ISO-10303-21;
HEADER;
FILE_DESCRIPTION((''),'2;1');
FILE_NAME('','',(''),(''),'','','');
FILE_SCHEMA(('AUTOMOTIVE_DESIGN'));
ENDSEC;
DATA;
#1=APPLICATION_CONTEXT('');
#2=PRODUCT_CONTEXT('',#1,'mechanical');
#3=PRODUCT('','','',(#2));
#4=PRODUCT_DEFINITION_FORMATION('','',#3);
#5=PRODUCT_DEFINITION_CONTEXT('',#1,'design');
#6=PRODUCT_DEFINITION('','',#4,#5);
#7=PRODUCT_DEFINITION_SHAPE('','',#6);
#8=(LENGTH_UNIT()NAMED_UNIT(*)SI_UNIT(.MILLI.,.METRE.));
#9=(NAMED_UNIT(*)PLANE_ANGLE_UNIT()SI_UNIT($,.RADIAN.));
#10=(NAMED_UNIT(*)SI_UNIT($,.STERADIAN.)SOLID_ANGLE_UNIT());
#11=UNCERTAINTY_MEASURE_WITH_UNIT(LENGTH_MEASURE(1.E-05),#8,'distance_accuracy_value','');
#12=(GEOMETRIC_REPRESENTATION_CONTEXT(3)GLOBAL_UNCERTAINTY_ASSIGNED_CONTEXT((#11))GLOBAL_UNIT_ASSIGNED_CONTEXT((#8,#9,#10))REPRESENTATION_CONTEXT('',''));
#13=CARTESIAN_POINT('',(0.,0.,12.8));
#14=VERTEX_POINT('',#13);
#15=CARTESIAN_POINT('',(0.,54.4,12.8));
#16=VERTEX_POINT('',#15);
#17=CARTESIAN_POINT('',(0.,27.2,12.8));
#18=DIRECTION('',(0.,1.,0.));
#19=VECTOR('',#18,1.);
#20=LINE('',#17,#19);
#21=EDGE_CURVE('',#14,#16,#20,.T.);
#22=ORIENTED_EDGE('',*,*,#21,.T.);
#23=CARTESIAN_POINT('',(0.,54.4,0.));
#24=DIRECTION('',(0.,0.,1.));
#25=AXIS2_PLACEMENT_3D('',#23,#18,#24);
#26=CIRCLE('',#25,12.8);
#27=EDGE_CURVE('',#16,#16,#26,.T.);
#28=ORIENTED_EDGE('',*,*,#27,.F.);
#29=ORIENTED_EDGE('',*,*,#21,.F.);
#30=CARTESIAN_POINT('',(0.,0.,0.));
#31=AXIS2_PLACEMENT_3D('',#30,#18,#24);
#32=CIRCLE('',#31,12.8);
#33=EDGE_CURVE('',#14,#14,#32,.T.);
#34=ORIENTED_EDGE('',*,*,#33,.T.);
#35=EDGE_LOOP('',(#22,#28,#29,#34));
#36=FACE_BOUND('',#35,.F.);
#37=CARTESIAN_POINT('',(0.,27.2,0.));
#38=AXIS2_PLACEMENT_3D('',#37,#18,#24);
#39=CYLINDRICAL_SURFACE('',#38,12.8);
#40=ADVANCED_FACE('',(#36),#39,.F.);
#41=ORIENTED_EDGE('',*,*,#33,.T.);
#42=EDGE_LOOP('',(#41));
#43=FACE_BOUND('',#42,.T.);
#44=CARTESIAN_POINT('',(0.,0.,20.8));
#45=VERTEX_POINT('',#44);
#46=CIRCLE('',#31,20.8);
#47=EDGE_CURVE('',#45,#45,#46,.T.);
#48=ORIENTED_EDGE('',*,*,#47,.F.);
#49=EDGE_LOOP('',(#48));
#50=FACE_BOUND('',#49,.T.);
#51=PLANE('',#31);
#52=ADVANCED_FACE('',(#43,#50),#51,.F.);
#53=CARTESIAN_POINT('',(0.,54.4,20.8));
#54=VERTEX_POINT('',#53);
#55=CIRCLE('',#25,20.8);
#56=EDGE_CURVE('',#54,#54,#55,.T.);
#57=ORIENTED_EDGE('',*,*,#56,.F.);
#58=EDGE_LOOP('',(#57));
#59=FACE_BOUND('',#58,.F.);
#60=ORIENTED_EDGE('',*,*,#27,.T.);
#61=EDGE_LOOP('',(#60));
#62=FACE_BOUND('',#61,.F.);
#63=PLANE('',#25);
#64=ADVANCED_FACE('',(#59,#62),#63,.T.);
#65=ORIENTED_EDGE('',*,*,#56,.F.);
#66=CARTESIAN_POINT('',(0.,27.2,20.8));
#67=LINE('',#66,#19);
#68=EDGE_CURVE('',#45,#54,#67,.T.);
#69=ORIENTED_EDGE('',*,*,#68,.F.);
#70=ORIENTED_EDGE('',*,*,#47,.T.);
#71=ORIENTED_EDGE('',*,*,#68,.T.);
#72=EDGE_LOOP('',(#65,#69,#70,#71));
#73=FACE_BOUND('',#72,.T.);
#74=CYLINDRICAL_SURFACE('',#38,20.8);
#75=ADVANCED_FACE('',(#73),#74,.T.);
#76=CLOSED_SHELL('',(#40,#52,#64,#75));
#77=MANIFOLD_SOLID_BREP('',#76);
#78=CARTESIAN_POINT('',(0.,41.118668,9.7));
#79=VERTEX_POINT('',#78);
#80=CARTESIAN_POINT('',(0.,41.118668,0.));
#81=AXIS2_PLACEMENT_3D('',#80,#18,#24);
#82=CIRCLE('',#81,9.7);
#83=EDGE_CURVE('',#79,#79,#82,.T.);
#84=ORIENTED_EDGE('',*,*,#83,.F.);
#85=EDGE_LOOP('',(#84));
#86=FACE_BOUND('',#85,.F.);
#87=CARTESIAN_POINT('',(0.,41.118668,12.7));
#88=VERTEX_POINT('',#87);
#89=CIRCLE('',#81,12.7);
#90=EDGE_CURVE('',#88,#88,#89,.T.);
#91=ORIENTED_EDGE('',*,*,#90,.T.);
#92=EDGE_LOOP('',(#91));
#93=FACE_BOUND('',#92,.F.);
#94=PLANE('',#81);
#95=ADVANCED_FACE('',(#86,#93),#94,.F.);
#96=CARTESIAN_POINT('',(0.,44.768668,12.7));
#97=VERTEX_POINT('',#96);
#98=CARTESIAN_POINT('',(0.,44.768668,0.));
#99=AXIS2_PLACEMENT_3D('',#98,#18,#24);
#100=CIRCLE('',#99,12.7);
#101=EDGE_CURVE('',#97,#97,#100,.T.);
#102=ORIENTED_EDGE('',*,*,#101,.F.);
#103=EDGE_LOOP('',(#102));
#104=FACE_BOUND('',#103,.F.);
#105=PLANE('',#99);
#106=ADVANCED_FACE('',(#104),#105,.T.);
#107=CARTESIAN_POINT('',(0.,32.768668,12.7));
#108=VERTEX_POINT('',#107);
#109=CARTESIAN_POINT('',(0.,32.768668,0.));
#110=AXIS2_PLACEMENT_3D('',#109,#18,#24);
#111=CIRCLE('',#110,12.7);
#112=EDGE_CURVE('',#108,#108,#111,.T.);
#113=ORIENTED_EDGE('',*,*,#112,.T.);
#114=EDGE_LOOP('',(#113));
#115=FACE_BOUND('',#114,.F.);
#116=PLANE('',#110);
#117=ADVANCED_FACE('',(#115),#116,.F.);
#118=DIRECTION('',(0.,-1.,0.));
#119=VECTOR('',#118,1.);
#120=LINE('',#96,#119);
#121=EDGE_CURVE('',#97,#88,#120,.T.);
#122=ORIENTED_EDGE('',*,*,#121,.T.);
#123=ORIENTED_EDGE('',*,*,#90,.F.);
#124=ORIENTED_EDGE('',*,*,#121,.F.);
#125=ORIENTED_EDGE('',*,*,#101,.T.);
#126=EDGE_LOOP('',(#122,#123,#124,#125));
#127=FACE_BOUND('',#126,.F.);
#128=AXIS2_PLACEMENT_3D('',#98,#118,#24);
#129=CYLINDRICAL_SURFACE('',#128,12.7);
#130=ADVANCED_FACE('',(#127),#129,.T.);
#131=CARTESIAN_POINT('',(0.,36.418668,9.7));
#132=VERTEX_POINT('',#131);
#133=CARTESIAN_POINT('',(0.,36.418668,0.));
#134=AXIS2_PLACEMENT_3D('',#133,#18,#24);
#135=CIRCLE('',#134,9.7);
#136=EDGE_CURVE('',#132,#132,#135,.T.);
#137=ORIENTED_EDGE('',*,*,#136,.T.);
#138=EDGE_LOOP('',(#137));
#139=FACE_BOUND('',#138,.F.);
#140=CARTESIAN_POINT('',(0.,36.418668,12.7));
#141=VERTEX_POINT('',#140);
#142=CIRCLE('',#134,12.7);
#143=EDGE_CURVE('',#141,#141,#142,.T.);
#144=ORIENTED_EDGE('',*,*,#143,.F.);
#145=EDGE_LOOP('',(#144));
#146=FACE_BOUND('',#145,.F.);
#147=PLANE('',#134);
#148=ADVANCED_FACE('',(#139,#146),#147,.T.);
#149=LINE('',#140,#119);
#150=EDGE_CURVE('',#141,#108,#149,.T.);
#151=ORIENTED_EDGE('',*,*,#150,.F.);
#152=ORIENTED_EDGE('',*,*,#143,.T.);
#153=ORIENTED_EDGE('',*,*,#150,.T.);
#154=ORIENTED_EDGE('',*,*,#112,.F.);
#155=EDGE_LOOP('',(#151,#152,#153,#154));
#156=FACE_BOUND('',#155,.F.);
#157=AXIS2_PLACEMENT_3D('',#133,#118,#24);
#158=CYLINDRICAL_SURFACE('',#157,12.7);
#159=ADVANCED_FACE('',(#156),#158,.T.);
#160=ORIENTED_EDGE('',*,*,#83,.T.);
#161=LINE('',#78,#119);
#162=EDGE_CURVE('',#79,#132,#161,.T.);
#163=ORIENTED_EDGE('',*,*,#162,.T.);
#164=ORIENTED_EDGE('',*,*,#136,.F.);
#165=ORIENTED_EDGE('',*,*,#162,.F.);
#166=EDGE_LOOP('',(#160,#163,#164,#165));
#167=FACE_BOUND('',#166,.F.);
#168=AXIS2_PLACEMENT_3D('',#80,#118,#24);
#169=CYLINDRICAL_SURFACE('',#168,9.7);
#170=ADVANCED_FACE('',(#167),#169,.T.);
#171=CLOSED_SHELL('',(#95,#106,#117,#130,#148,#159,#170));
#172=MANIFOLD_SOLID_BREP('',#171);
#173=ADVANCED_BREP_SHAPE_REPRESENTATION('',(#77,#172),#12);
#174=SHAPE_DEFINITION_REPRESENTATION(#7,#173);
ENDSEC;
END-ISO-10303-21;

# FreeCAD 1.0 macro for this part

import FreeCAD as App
import Part
import Sketcher

V = App.Vector
Q = App.Units.Quantity

doc = App.newDocument("Part")
params = doc.addObject("Spreadsheet::Sheet", "Params")
for row, (alias, value) in enumerate([
    ("sketch1_width", "12 mm"),
    ("sketch1_height", "3 mm"),
    ("sketch1_width2", "4.7 mm"),
    ("sketch1_height2", "12.7 mm"),
    ("revolution_angle", "360 deg"),
    ("sketch2_height", "8 mm"),
    ("sketch2_width", "54.4 mm"),
    ("revolution2_angle", "360 deg"),
], start=1):
    params.set(f"A{row}", alias)
    params.set(f"B{row}", "=" + value)
    params.setAlias(f"B{row}", alias)

body = doc.addObject("PartDesign::Body", "Body")

# Sketch on YZ plane
sketch1 = body.newObject("Sketcher::SketchObject", "Sketch")
sketch1.AttachmentSupport = (doc.getObject("YZ_Plane"), [""])
sketch1.MapMode = "FlatFace"
sketch1.addGeometry(Part.LineSegment(V(32.8, 12.7, 0), V(32.8, 0, 0)), False)
sketch1.addGeometry(Part.LineSegment(V(32.8, 0, 0), V(44.8, 0, 0)), False)
sketch1.addGeometry(Part.LineSegment(V(44.8, 0, 0), V(44.8, 12.7, 0)), False)
sketch1.addGeometry(Part.LineSegment(V(44.8, 12.7, 0), V(41.1, 12.7, 0)), False)
sketch1.addGeometry(Part.LineSegment(V(41.1, 12.7, 0), V(41.1, 9.7, 0)), False)
sketch1.addGeometry(Part.LineSegment(V(41.1, 9.7, 0), V(36.4, 9.7, 0)), False)
sketch1.addGeometry(Part.LineSegment(V(36.4, 9.7, 0), V(36.4, 12.7, 0)), False)
sketch1.addGeometry(Part.LineSegment(V(36.4, 12.7, 0), V(32.8, 12.7, 0)), False)
sketch1.addConstraint(Sketcher.Constraint("Coincident", 0, 2, 1, 1))
sketch1.addConstraint(Sketcher.Constraint("Coincident", 1, 2, 2, 1))
sketch1.addConstraint(Sketcher.Constraint("Coincident", 2, 2, 3, 1))
sketch1.addConstraint(Sketcher.Constraint("Coincident", 3, 2, 4, 1))
sketch1.addConstraint(Sketcher.Constraint("Coincident", 4, 2, 5, 1))
sketch1.addConstraint(Sketcher.Constraint("Coincident", 5, 2, 6, 1))
sketch1.addConstraint(Sketcher.Constraint("Coincident", 6, 2, 7, 1))
sketch1.addConstraint(Sketcher.Constraint("Coincident", 7, 2, 0, 1))
sketch1.addConstraint(Sketcher.Constraint("Vertical", 0))
sketch1.addConstraint(Sketcher.Constraint("Horizontal", 1))
sketch1.addConstraint(Sketcher.Constraint("Vertical", 2))
sketch1.addConstraint(Sketcher.Constraint("Horizontal", 3))
sketch1.addConstraint(Sketcher.Constraint("Vertical", 4))
sketch1.addConstraint(Sketcher.Constraint("Horizontal", 5))
sketch1.addConstraint(Sketcher.Constraint("Vertical", 6))
sketch1.addConstraint(Sketcher.Constraint("Horizontal", 7))
sketch1.addConstraint(Sketcher.Constraint("PointOnObject", 0, 2, -1))
sketch1.addConstraint(Sketcher.Constraint("Horizontal", 3, 2, 6, 2))
sketch1.addConstraint(Sketcher.Constraint("Equal", 3, 7))
sketch1.addConstraint(Sketcher.Constraint("DistanceX", 1, 1, 1, 2, Q("12 mm")))
sketch1.addConstraint(Sketcher.Constraint("DistanceY", 4, 2, 4, 1, Q("3 mm")))
sketch1.addConstraint(Sketcher.Constraint("DistanceX", 5, 2, 5, 1, Q("4.7 mm")))
sketch1.addConstraint(Sketcher.Constraint("DistanceY", 0, 2, 0, 1, Q("12.7 mm")))
sketch1.addConstraint(Sketcher.Constraint("DistanceX", -1, 1, 0, 2, Q("32.768668 mm")))
sketch1.setExpression("Constraints[19]", "Params.sketch1_width")
sketch1.setExpression("Constraints[20]", "Params.sketch1_height")
sketch1.setExpression("Constraints[21]", "Params.sketch1_width2")
sketch1.setExpression("Constraints[22]", "Params.sketch1_height2")
revolution = body.newObject("PartDesign::Revolution", "Revolution")
revolution.Profile = sketch1
revolution.ReferenceAxis = (sketch1, ["H_Axis"])
revolution.setExpression("Angle", "Params.revolution_angle")
body2 = doc.addObject("PartDesign::Body", "Body001")

# Sketch on YZ plane
sketch2 = body2.newObject("Sketcher::SketchObject", "Sketch001")
sketch2.AttachmentSupport = (doc.getObject("YZ_Plane001"), [""])
sketch2.MapMode = "FlatFace"
sketch2.addGeometry(Part.LineSegment(V(0, 21, 0), V(0, 13, 0)), False)
sketch2.addGeometry(Part.LineSegment(V(0, 13, 0), V(54, 13, 0)), False)
sketch2.addGeometry(Part.LineSegment(V(54, 13, 0), V(54, 21, 0)), False)
sketch2.addGeometry(Part.LineSegment(V(54, 21, 0), V(0, 21, 0)), False)
sketch2.addConstraint(Sketcher.Constraint("Coincident", 0, 2, 1, 1))
sketch2.addConstraint(Sketcher.Constraint("Coincident", 1, 2, 2, 1))
sketch2.addConstraint(Sketcher.Constraint("Coincident", 2, 2, 3, 1))
sketch2.addConstraint(Sketcher.Constraint("Coincident", 3, 2, 0, 1))
sketch2.addConstraint(Sketcher.Constraint("Vertical", 0))
sketch2.addConstraint(Sketcher.Constraint("Horizontal", 1))
sketch2.addConstraint(Sketcher.Constraint("Vertical", 2))
sketch2.addConstraint(Sketcher.Constraint("Horizontal", 3))
sketch2.addConstraint(Sketcher.Constraint("PointOnObject", 0, 2, -2))
sketch2.addConstraint(Sketcher.Constraint("DistanceY", 0, 2, 0, 1, Q("8 mm")))
sketch2.addConstraint(Sketcher.Constraint("DistanceX", 1, 1, 1, 2, Q("54.4 mm")))
sketch2.addConstraint(Sketcher.Constraint("DistanceY", -1, 1, 0, 2, Q("12.8 mm")))
sketch2.setExpression("Constraints[9]", "Params.sketch2_height")
sketch2.setExpression("Constraints[10]", "Params.sketch2_width")
revolution2 = body2.newObject("PartDesign::Revolution", "Revolution001")
revolution2.Profile = sketch2
revolution2.ReferenceAxis = (sketch2, ["H_Axis"])
revolution2.setExpression("Angle", "Params.revolution2_angle")

doc.recompute()
